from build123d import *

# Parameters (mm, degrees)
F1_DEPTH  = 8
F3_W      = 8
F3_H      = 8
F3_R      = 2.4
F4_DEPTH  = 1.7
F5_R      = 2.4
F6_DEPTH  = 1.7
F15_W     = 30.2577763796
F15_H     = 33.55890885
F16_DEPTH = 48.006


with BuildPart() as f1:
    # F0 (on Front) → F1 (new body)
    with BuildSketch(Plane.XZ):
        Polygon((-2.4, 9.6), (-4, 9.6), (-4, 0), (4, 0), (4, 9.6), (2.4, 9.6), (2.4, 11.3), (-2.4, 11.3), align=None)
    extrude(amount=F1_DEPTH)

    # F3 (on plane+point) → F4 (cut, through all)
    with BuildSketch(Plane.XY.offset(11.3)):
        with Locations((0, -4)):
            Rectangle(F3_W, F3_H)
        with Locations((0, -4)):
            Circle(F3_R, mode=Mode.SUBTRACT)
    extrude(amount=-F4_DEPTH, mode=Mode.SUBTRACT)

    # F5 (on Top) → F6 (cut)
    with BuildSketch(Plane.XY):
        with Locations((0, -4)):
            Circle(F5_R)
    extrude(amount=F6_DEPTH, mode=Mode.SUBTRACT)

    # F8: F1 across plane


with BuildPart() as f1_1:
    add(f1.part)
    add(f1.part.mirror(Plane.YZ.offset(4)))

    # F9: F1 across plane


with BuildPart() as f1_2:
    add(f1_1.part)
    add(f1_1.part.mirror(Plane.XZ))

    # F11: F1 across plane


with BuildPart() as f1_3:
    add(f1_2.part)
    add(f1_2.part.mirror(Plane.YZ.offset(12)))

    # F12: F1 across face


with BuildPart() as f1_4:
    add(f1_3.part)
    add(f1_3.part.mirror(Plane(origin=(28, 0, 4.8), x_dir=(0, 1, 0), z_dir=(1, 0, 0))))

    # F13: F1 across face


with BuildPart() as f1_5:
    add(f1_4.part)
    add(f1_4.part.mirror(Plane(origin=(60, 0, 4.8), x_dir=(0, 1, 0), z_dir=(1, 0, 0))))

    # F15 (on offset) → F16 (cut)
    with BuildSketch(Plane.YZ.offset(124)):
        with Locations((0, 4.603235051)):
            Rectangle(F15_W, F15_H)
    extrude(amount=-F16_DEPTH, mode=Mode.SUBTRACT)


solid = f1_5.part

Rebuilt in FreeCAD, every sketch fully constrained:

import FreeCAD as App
import Part
import Sketcher

V = App.Vector
Q = App.Units.Quantity


def add_polygon(sketch, points):
    """Adds a closed chain of lines whose ends are joined by coincident constraints."""
    first, n = sketch.GeometryCount, len(points)
    for a, b in zip(points, points[1:] + points[:1]):
        sketch.addGeometry(Part.LineSegment(App.Vector(*a, 0), App.Vector(*b, 0)), False)
    for i in range(n):
        sketch.addConstraint(Sketcher.Constraint("Coincident", first + i, 2, first + (i + 1) % n, 1))

doc = App.newDocument("Part")
body = doc.addObject("PartDesign::Body", "Body")

sketch1 = body.newObject("Sketcher::SketchObject", "Sketch")
sketch1.AttachmentSupport = (doc.getObject("XZ_Plane"), [""])
sketch1.MapMode = "FlatFace"
add_polygon(sketch1, [(-2.4, 9.6), (-4, 9.6), (-4, 0), (4, 0), (4, 9.6), (2.4, 9.6), (2.4, 11.3), (-2.4, 11.3)])
sketch1.addConstraint([
    Sketcher.Constraint("Horizontal", 0),
    Sketcher.Constraint("Vertical", 1),
    Sketcher.Constraint("Horizontal", 2),
    Sketcher.Constraint("Vertical", 3),
    Sketcher.Constraint("Horizontal", 4),
    Sketcher.Constraint("Vertical", 5),
    Sketcher.Constraint("Horizontal", 6),
    Sketcher.Constraint("Vertical", 7),
    Sketcher.Constraint("Symmetric", 1, 2, 2, 2, -1, 1),
    Sketcher.Constraint("Symmetric", 4, 2, 7, 2, -2),
    Sketcher.Constraint("DistanceX", 2, 1, 2, 2, Q("8 mm")),
    Sketcher.Constraint("DistanceX", 0, 2, 0, 1, Q("1.6 mm")),
    Sketcher.Constraint("DistanceY", 1, 2, 1, 1, Q("9.6 mm")),
    Sketcher.Constraint("DistanceY", 5, 1, 5, 2, Q("1.7 mm")),
])
pad1 = body.newObject("PartDesign::Pad", "Pad")
pad1.Profile = sketch1
pad1.Length = 8

sketch2 = body.newObject("Sketcher::SketchObject", "Sketch001")
sketch2.AttachmentSupport = (doc.getObject("XY_Plane"), [""])
sketch2.MapMode = "FlatFace"
sketch2.AttachmentOffset = App.Placement(V(0, 0, 11.3), App.Rotation())
add_polygon(sketch2, [(-4, 0), (-4, -8), (4, -8), (4, 0)])
sketch2.addGeometry(Part.Circle(V(0, -4, 0), V(0, 0, 1), 2.4), False)
sketch2.addConstraint([
    Sketcher.Constraint("Vertical", 0),
    Sketcher.Constraint("Horizontal", 1),
    Sketcher.Constraint("Vertical", 2),
    Sketcher.Constraint("Horizontal", 3),
    Sketcher.Constraint("Symmetric", 2, 2, 3, 2, -1, 1),
    Sketcher.Constraint("PointOnObject", 4, 3, -2),
    Sketcher.Constraint("Equal", 3, 0),
    Sketcher.Constraint("Diameter", 4, Q("4.8 mm")),
    Sketcher.Constraint("DistanceX", 1, 1, 1, 2, Q("8 mm")),
    Sketcher.Constraint("DistanceY", 4, 3, -1, 1, Q("4 mm")),
])
pocket1 = body.newObject("PartDesign::Pocket", "Pocket")
pocket1.Profile = sketch2
pocket1.Length = 1.7

sketch3 = body.newObject("Sketcher::SketchObject", "Sketch002")
sketch3.AttachmentSupport = (doc.getObject("XY_Plane"), [""])
sketch3.MapMode = "FlatFace"
sketch3.addGeometry(Part.Circle(V(0, -4, 0), V(0, 0, 1), 2.4), False)
sketch3.addConstraint([
    Sketcher.Constraint("PointOnObject", 0, 3, -2),
    Sketcher.Constraint("Diameter", 0, Q("4.8 mm")),
    Sketcher.Constraint("DistanceY", 0, 3, -1, 1, Q("4 mm")),
])
pocket2 = body.newObject("PartDesign::Pocket", "Pocket001")
pocket2.Profile = sketch3
pocket2.Length = 1.7
pocket2.Reversed = True
body2 = doc.addObject("PartDesign::Body", "Body001")
doc.recompute()

body2.BaseFeature = body
doc.recompute()

mirroring = doc.addObject("Part::Mirroring", "Mirroring")
mirroring.Source = body
mirroring.Base = V(4, 0, 0)
mirroring.Normal = V(1, 0, 0)
body3 = doc.addObject("PartDesign::Body", "Body002")
body3.BaseFeature = mirroring
boolean = body2.newObject("PartDesign::Boolean", "Boolean")
boolean.Type = "Fuse"
boolean.addObjects([body3])
doc.recompute()
body4 = doc.addObject("PartDesign::Body", "Body003")
doc.recompute()

body4.BaseFeature = body2
doc.recompute()

mirroring2 = doc.addObject("Part::Mirroring", "Mirroring001")
mirroring2.Source = body2
mirroring2.Base = V(0, 0, 0)
mirroring2.Normal = V(0, -1, 0)
body5 = doc.addObject("PartDesign::Body", "Body004")
body5.BaseFeature = mirroring2
boolean2 = body4.newObject("PartDesign::Boolean", "Boolean001")
boolean2.Type = "Fuse"
boolean2.addObjects([body5])
doc.recompute()
body6 = doc.addObject("PartDesign::Body", "Body005")
doc.recompute()

body6.BaseFeature = body4
doc.recompute()

mirroring3 = doc.addObject("Part::Mirroring", "Mirroring002")
mirroring3.Source = body4
mirroring3.Base = V(12, 0, 0)
mirroring3.Normal = V(1, 0, 0)
body7 = doc.addObject("PartDesign::Body", "Body006")
body7.BaseFeature = mirroring3
boolean3 = body6.newObject("PartDesign::Boolean", "Boolean002")
boolean3.Type = "Fuse"
boolean3.addObjects([body7])
doc.recompute()
body8 = doc.addObject("PartDesign::Body", "Body007")
doc.recompute()

body8.BaseFeature = body6
doc.recompute()

mirroring4 = doc.addObject("Part::Mirroring", "Mirroring003")
mirroring4.Source = body6
mirroring4.Base = V(28, 0, 4.8)
mirroring4.Normal = V(1, 0, 0)
body9 = doc.addObject("PartDesign::Body", "Body008")
body9.BaseFeature = mirroring4
boolean4 = body8.newObject("PartDesign::Boolean", "Boolean003")
boolean4.Type = "Fuse"
boolean4.addObjects([body9])
doc.recompute()
body10 = doc.addObject("PartDesign::Body", "Body009")
doc.recompute()

body10.BaseFeature = body8
doc.recompute()

mirroring5 = doc.addObject("Part::Mirroring", "Mirroring004")
mirroring5.Source = body8
mirroring5.Base = V(60, 0, 4.8)
mirroring5.Normal = V(1, 0, 0)
body11 = doc.addObject("PartDesign::Body", "Body010")
body11.BaseFeature = mirroring5
boolean5 = body10.newObject("PartDesign::Boolean", "Boolean004")
boolean5.Type = "Fuse"
boolean5.addObjects([body11])
doc.recompute()

sketch4 = body10.newObject("Sketcher::SketchObject", "Sketch003")
sketch4.AttachmentSupport = (doc.getObject("YZ_Plane009"), [""])
sketch4.MapMode = "FlatFace"
sketch4.AttachmentOffset = App.Placement(V(0, 0, 124), App.Rotation())
add_polygon(sketch4, [(-15, 21), (-15, -12), (15, -12), (15, 21)])
sketch4.addConstraint([
    Sketcher.Constraint("Vertical", 0),
    Sketcher.Constraint("Horizontal", 1),
    Sketcher.Constraint("Vertical", 2),
    Sketcher.Constraint("Horizontal", 3),
    Sketcher.Constraint("DistanceY", 0, 2, 0, 1, Q("33.558909 mm")),
    Sketcher.Constraint("DistanceX", 1, 1, 1, 2, Q("30.257776 mm")),
    Sketcher.Constraint("DistanceX", 0, 2, -1, 1, Q("15.128888 mm")),
    Sketcher.Constraint("DistanceY", 0, 2, -1, 1, Q("12.176219 mm")),
])
pocket3 = body10.newObject("PartDesign::Pocket", "Pocket002")
pocket3.Profile = sketch4
pocket3.Length = 48.006
mirroring.Visibility = False
mirroring2.Visibility = False
mirroring3.Visibility = False
mirroring4.Visibility = False
mirroring5.Visibility = False

doc.recompute()
